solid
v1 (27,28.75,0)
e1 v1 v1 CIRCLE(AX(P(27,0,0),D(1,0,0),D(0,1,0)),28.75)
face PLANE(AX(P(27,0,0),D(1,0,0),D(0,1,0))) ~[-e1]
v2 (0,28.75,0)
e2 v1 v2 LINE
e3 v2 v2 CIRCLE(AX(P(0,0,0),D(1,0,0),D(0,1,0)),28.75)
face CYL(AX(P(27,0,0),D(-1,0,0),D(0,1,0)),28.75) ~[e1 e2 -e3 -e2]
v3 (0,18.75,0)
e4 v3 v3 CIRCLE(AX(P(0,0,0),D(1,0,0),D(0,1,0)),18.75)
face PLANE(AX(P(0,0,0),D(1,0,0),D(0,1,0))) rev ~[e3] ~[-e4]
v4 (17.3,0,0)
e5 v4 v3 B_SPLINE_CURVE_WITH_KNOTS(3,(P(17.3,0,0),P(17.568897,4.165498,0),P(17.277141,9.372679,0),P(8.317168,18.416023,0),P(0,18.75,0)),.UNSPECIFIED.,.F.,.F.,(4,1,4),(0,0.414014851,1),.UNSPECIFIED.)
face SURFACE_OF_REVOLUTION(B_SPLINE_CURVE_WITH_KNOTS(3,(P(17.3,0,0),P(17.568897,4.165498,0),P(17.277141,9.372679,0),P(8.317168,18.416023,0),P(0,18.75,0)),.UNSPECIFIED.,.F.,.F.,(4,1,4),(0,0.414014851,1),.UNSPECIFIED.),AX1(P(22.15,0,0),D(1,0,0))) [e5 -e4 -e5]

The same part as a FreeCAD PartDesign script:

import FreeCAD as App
import Part
import Sketcher

V = App.Vector

doc = App.newDocument("Part")
params = doc.addObject("Spreadsheet::Sheet", "Params")
for row, (alias, value) in enumerate([
    ("sketch1_width", "27 mm"),
    ("sketch1_height", "10 mm"),
    ("revolution_angle", "360 deg"),
], start=1):
    params.set(f"A{row}", alias)
    params.set(f"B{row}", "=" + value)
    params.setAlias(f"B{row}", alias)

body = doc.addObject("PartDesign::Body", "Body")

# Sketch on XY plane
sketch1 = body.newObject("Sketcher::SketchObject", "Sketch")
sketch1.AttachmentSupport = (doc.getObject("XY_Plane"), [""])
sketch1.MapMode = "FlatFace"
sketch1.addGeometry([
    Part.BSplineCurve([V(17.3, 0, 0), V(17.568897, 4.165498, 0), V(17.277141, 9.372679, 0), V(8.317168, 18.416023, 0), V(0, 18.75, 0)], [4, 1, 4], [0, 0.414014851, 1], False, 3, [1, 1, 1, 1, 1], False),  # 0
    Part.LineSegment(V(17.3, 0, 0), V(27, 0, 0)),  # 1
    Part.LineSegment(V(27, 0, 0), V(27, 28.75, 0)),  # 2
    Part.LineSegment(V(27, 28.75, 0), V(0, 28.75, 0)),  # 3
    Part.LineSegment(V(0, 28.75, 0), V(0, 18.75, 0)),  # 4
], False)
sketch1.addConstraint([
    Sketcher.Constraint("Block", 0),
    Sketcher.Constraint("Coincident", 0, 1, 1, 1),
    Sketcher.Constraint("Coincident", 1, 2, 2, 1),
    Sketcher.Constraint("Coincident", 2, 2, 3, 1),
    Sketcher.Constraint("Coincident", 3, 2, 4, 1),
    Sketcher.Constraint("Coincident", 4, 2, 0, 2),
    Sketcher.Constraint("Horizontal", 1),
    Sketcher.Constraint("Vertical", 2),
    Sketcher.Constraint("Horizontal", 3),
    Sketcher.Constraint("Vertical", 4),
    Sketcher.Constraint("DistanceX", 3, 2, 3, 1, 27.0),
    Sketcher.Constraint("DistanceY", 4, 2, 4, 1, 10.0),
])
sketch1.setExpression("Constraints[10]", "Params.sketch1_width")
sketch1.setExpression("Constraints[11]", "Params.sketch1_height")
revolution = body.newObject("PartDesign::Revolution", "Revolution")
revolution.Profile = sketch1
revolution.ReferenceAxis = (sketch1, ["H_Axis"])
revolution.setExpression("Angle", "Params.revolution_angle")

doc.recompute()
